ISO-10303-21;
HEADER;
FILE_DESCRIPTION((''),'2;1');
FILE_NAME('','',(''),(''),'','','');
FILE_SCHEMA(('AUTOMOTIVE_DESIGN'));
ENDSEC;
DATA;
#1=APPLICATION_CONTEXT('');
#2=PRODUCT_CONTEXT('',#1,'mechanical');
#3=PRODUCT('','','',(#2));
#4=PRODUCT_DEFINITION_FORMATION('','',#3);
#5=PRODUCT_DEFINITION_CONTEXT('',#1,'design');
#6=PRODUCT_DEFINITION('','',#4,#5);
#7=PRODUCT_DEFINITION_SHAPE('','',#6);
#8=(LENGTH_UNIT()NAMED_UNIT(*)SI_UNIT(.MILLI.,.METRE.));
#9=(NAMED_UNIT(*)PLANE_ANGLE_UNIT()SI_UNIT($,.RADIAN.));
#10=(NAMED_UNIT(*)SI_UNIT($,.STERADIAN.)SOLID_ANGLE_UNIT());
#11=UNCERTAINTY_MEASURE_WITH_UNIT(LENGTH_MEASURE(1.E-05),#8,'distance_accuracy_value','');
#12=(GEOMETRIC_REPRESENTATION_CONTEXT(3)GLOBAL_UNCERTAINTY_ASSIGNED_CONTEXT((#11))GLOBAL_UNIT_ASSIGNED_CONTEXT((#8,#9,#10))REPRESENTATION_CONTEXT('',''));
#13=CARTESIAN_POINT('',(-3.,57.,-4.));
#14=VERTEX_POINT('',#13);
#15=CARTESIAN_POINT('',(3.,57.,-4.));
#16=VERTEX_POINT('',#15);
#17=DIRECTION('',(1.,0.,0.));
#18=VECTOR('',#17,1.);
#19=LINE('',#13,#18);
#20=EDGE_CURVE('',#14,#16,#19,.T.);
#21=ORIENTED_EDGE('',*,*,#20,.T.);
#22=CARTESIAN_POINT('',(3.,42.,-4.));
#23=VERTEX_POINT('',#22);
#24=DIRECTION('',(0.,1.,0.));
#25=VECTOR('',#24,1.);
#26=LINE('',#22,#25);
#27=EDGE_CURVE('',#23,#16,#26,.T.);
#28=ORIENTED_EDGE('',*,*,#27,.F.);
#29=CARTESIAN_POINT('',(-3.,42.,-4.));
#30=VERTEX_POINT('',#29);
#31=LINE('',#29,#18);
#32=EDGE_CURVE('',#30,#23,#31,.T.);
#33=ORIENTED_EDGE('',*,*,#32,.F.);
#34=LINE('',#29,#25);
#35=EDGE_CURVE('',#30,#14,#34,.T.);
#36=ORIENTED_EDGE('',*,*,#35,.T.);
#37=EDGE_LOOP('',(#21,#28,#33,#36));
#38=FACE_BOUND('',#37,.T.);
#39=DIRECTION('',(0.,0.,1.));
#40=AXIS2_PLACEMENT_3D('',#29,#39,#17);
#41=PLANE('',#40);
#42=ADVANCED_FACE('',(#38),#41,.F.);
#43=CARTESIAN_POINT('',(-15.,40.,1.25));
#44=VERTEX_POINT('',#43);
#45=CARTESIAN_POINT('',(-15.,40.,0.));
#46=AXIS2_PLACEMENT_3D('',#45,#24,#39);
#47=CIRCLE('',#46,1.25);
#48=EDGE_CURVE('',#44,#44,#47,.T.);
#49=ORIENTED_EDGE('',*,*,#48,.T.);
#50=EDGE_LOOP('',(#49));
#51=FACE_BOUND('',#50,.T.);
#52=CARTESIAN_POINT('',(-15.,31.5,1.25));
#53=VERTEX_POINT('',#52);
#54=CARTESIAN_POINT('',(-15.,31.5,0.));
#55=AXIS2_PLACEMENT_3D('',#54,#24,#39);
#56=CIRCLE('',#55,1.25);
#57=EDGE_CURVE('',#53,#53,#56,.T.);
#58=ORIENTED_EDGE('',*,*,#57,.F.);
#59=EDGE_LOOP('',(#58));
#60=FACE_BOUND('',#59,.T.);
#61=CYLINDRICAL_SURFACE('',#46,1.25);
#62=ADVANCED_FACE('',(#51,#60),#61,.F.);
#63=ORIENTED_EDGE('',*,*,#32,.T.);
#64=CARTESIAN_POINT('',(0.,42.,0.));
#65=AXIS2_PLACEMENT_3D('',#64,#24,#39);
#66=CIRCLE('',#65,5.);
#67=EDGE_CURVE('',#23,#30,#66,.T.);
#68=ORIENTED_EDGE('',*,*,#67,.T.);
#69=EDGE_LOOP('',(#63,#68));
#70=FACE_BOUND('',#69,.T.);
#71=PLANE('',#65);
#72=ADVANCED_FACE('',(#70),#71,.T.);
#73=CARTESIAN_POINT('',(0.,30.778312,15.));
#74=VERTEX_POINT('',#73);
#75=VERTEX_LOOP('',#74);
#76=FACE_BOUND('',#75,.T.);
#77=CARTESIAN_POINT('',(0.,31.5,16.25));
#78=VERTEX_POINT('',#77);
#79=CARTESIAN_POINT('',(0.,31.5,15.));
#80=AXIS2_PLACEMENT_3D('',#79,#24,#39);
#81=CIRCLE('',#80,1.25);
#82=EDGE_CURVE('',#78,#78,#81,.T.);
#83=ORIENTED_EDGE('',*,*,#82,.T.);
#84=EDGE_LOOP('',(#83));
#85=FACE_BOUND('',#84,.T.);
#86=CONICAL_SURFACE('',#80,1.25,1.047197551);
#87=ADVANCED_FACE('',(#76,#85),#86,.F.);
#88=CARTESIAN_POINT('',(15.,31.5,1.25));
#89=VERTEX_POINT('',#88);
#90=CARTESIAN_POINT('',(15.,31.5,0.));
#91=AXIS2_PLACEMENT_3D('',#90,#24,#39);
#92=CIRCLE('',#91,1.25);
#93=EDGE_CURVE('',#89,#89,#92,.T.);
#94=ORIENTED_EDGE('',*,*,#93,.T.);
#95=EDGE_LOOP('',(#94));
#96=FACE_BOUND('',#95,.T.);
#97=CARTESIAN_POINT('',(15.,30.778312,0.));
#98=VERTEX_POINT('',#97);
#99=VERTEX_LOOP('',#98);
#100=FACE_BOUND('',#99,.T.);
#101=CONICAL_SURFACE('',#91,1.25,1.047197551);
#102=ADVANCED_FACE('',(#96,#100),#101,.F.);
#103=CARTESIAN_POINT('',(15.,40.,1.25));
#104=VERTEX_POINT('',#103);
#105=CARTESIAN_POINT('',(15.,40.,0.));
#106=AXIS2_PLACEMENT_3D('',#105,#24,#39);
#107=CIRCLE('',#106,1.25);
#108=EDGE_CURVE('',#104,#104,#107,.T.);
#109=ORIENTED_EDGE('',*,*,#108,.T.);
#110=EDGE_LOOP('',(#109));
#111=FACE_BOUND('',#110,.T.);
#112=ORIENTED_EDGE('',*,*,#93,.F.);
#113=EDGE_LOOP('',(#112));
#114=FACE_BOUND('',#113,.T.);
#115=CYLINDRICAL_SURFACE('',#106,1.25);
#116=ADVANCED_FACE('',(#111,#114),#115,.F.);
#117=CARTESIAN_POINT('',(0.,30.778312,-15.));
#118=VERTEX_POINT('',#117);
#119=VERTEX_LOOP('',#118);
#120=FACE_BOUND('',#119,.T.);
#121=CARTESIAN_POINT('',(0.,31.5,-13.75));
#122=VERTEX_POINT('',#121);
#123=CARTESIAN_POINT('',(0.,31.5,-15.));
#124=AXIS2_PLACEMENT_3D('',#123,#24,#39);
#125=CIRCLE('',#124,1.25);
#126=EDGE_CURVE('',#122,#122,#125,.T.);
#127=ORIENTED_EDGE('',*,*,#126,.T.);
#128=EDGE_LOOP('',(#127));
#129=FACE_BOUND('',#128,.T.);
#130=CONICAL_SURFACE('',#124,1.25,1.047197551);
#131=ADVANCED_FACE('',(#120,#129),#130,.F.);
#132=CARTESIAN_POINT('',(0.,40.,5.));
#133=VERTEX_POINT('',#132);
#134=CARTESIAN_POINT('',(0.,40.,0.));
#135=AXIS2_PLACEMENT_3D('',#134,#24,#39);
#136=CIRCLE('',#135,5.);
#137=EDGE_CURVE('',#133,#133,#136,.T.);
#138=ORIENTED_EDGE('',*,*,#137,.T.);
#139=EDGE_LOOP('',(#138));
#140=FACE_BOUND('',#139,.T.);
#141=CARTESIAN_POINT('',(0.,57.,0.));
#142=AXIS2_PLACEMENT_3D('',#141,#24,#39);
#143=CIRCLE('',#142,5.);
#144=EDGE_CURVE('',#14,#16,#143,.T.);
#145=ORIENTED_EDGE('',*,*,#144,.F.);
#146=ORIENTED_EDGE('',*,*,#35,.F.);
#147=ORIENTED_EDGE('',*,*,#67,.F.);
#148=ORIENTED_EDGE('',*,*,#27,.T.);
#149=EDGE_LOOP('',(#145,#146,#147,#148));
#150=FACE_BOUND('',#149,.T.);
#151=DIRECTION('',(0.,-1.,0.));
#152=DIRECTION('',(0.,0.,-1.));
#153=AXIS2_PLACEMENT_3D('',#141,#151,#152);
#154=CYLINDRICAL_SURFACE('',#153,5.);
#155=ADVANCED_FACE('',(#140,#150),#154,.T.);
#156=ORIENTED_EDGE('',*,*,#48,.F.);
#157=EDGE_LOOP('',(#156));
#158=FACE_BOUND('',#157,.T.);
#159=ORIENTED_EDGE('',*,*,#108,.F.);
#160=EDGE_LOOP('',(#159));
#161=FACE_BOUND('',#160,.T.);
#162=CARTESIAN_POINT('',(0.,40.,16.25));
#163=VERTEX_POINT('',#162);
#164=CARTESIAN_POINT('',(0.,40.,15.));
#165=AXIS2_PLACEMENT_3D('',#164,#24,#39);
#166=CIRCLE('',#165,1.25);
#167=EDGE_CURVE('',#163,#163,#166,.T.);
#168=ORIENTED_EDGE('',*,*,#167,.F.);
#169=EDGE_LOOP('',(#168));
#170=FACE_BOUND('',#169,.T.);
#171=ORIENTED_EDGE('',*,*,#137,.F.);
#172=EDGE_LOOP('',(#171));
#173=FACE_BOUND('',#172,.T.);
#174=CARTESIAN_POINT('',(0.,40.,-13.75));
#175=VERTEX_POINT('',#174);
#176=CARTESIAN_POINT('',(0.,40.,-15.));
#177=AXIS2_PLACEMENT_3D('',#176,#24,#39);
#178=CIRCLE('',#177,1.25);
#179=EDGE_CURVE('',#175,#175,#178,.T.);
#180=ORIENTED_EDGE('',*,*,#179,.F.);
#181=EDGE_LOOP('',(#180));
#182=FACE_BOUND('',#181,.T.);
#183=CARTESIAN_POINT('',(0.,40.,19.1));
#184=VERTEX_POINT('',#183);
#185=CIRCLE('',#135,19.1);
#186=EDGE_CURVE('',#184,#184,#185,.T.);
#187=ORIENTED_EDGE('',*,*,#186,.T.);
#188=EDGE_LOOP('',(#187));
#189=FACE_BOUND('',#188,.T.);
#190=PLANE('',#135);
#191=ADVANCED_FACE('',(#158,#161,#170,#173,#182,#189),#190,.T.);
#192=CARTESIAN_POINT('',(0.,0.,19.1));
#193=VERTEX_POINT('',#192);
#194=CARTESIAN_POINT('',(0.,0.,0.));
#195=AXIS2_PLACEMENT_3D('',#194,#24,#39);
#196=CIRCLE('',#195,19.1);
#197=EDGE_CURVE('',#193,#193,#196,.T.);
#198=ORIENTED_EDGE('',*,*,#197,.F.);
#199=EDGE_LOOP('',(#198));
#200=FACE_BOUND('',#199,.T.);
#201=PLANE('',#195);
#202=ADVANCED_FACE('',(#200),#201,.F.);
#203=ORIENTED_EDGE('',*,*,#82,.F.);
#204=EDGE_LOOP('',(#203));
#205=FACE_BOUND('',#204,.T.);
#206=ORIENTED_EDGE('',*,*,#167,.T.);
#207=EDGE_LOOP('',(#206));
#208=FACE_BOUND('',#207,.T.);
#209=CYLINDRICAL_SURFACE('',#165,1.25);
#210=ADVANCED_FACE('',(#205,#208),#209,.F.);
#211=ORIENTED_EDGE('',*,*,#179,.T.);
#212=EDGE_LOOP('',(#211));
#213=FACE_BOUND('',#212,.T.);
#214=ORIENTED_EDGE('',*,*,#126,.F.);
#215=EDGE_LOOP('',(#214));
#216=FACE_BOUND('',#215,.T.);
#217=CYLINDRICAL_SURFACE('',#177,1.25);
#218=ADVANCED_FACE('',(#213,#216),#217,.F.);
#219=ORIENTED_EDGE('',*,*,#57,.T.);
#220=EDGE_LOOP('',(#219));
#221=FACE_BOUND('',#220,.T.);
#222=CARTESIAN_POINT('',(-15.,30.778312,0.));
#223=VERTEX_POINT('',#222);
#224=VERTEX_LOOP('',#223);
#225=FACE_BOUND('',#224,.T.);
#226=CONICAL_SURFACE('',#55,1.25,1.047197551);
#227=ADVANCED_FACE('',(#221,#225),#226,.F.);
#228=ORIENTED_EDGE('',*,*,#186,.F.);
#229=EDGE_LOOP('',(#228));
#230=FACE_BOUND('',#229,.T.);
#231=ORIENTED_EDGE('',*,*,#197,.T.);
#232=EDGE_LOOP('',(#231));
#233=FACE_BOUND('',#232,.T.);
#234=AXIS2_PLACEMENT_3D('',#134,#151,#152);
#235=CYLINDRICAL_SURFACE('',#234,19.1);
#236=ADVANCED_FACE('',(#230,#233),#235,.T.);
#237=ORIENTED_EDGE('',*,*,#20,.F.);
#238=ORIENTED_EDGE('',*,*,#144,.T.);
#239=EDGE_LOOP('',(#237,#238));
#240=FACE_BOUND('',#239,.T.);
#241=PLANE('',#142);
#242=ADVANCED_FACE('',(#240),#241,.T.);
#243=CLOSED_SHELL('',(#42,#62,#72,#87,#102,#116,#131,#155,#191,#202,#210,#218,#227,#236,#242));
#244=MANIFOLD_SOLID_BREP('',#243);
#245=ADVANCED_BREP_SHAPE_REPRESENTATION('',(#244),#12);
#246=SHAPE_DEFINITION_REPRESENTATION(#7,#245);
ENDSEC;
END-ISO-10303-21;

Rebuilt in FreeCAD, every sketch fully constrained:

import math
import FreeCAD as App
import Part
import Sketcher

V = App.Vector
Q = App.Units.Quantity

doc = App.newDocument("Part")
params = doc.addObject("Spreadsheet::Sheet", "Params")
for row, (alias, value) in enumerate([
    ("sketch1_diameter", "38.2 mm"),
    ("pad1_length", "40 mm"),
    ("sketch2_diameter", "10 mm"),
    ("pad2_length", "17 mm"),
    ("sketch3_radius", "5 mm"),
    ("sketch3_width", "6 mm"),
    ("pocket1_length", "15 mm"),
    ("sketch4_diameter", "2.5 mm"),
    ("hole_diameter", "2.5 mm"),
    ("hole_depth", "8.5 mm"),
], start=1):
    params.set(f"A{row}", alias)
    params.set(f"B{row}", "=" + value)
    params.setAlias(f"B{row}", alias)

body = doc.addObject("PartDesign::Body", "Body")

# Sketch on XZ plane
sketch1 = body.newObject("Sketcher::SketchObject", "Sketch")
sketch1.AttachmentSupport = (doc.getObject("XZ_Plane"), [""])
sketch1.MapMode = "FlatFace"
sketch1.addGeometry(Part.Circle(V(0, 0, 0), V(0, 0, 1), 19), False)
sketch1.addConstraint([
    Sketcher.Constraint("Coincident", 0, 3, -1, 1),
    Sketcher.Constraint("Diameter", 0, Q("38.2 mm")),
])
sketch1.setExpression("Constraints[1]", "Params.sketch1_diameter")
pad1 = body.newObject("PartDesign::Pad", "Pad")
pad1.Profile = sketch1
pad1.setExpression("Length", "Params.pad1_length")
pad1.Reversed = True

# Sketch on XZ plane
sketch2 = body.newObject("Sketcher::SketchObject", "Sketch001")
sketch2.AttachmentSupport = (doc.getObject("XZ_Plane"), [""])
sketch2.MapMode = "FlatFace"
sketch2.AttachmentOffset = App.Placement(V(0, 0, -40), App.Rotation())
sketch2.addGeometry(Part.Circle(V(0, 0, 0), V(0, 0, 1), 5), False)
sketch2.addConstraint([
    Sketcher.Constraint("Coincident", 0, 3, -1, 1),
    Sketcher.Constraint("Diameter", 0, Q("10 mm")),
])
sketch2.setExpression("Constraints[1]", "Params.sketch2_diameter")
pad2 = body.newObject("PartDesign::Pad", "Pad001")
pad2.Profile = sketch2
pad2.setExpression("Length", "Params.pad2_length")
pad2.Reversed = True

# Sketch on XZ plane
sketch3 = body.newObject("Sketcher::SketchObject", "Sketch002")
sketch3.AttachmentSupport = (doc.getObject("XZ_Plane"), [""])
sketch3.MapMode = "FlatFace"
sketch3.AttachmentOffset = App.Placement(V(0, 0, -42), App.Rotation())
sketch3.addGeometry([
    Part.LineSegment(V(-3, -4, 0), V(3, -4, 0)),
    Part.ArcOfCircle(Part.Circle(V(0, 0, 0), V(0, 0, 1), 5), math.radians(-127), math.radians(-53)),
], False)
sketch3.addConstraint([
    Sketcher.Constraint("Coincident", 0, 1, 1, 1),
    Sketcher.Constraint("Coincident", 1, 2, 0, 2),
    Sketcher.Constraint("Horizontal", 0),
    Sketcher.Constraint("Coincident", 1, 3, -1, 1),
    Sketcher.Constraint("Radius", 1, Q("5 mm")),
    Sketcher.Constraint("DistanceX", 0, 1, 0, 2, Q("6 mm")),
])
sketch3.setExpression("Constraints[4]", "Params.sketch3_radius")
sketch3.setExpression("Constraints[5]", "Params.sketch3_width")
pocket1 = body.newObject("PartDesign::Pocket", "Pocket")
pocket1.Profile = sketch3
pocket1.setExpression("Length", "Params.pocket1_length")

# Sketch on XZ plane
sketch4 = body.newObject("Sketcher::SketchObject", "Sketch003")
sketch4.AttachmentSupport = (doc.getObject("XZ_Plane"), [""])
sketch4.MapMode = "FlatFace"
sketch4.AttachmentOffset = App.Placement(V(0, 0, -40), App.Rotation())
sketch4.addGeometry([
    Part.Circle(V(0, -15, 0), V(0, 0, 1), 1.2),
    Part.Circle(V(-15, 0, 0), V(0, 0, 1), 1.2),
    Part.Circle(V(15, 0, 0), V(0, 0, 1), 1.2),
    Part.Circle(V(0, 15, 0), V(0, 0, 1), 1.2),
], False)
sketch4.addConstraint([
    Sketcher.Constraint("Equal", 0, 1),
    Sketcher.Constraint("Equal", 1, 2),
    Sketcher.Constraint("Equal", 2, 3),
    Sketcher.Constraint("Symmetric", 1, 3, 2, 3, -1, 1),
    Sketcher.Constraint("Symmetric", 0, 3, 3, 3, -1, 1),
    Sketcher.Constraint("PointOnObject", 0, 3, -2),
    Sketcher.Constraint("PointOnObject", 1, 3, -1),
    Sketcher.Constraint("Diameter", 0, Q("2.5 mm")),
    Sketcher.Constraint("DistanceY", 0, 3, -1, 1, Q("15 mm")),
    Sketcher.Constraint("DistanceX", 1, 3, -1, 1, Q("15 mm")),
])
sketch4.setExpression("Constraints[7]", "Params.sketch4_diameter")
doc.recompute()
hole = body.newObject("PartDesign::Hole", "Hole")
hole.Profile = sketch4
hole.ThreadType = "None"
hole.setExpression("Diameter", "Params.hole_diameter")
hole.DepthType = "Dimension"
hole.setExpression("Depth", "Params.hole_depth")
hole.DrillPoint = "Angled"
hole.DrillPointAngle = 120
hole.Reversed = True

doc.recompute()
